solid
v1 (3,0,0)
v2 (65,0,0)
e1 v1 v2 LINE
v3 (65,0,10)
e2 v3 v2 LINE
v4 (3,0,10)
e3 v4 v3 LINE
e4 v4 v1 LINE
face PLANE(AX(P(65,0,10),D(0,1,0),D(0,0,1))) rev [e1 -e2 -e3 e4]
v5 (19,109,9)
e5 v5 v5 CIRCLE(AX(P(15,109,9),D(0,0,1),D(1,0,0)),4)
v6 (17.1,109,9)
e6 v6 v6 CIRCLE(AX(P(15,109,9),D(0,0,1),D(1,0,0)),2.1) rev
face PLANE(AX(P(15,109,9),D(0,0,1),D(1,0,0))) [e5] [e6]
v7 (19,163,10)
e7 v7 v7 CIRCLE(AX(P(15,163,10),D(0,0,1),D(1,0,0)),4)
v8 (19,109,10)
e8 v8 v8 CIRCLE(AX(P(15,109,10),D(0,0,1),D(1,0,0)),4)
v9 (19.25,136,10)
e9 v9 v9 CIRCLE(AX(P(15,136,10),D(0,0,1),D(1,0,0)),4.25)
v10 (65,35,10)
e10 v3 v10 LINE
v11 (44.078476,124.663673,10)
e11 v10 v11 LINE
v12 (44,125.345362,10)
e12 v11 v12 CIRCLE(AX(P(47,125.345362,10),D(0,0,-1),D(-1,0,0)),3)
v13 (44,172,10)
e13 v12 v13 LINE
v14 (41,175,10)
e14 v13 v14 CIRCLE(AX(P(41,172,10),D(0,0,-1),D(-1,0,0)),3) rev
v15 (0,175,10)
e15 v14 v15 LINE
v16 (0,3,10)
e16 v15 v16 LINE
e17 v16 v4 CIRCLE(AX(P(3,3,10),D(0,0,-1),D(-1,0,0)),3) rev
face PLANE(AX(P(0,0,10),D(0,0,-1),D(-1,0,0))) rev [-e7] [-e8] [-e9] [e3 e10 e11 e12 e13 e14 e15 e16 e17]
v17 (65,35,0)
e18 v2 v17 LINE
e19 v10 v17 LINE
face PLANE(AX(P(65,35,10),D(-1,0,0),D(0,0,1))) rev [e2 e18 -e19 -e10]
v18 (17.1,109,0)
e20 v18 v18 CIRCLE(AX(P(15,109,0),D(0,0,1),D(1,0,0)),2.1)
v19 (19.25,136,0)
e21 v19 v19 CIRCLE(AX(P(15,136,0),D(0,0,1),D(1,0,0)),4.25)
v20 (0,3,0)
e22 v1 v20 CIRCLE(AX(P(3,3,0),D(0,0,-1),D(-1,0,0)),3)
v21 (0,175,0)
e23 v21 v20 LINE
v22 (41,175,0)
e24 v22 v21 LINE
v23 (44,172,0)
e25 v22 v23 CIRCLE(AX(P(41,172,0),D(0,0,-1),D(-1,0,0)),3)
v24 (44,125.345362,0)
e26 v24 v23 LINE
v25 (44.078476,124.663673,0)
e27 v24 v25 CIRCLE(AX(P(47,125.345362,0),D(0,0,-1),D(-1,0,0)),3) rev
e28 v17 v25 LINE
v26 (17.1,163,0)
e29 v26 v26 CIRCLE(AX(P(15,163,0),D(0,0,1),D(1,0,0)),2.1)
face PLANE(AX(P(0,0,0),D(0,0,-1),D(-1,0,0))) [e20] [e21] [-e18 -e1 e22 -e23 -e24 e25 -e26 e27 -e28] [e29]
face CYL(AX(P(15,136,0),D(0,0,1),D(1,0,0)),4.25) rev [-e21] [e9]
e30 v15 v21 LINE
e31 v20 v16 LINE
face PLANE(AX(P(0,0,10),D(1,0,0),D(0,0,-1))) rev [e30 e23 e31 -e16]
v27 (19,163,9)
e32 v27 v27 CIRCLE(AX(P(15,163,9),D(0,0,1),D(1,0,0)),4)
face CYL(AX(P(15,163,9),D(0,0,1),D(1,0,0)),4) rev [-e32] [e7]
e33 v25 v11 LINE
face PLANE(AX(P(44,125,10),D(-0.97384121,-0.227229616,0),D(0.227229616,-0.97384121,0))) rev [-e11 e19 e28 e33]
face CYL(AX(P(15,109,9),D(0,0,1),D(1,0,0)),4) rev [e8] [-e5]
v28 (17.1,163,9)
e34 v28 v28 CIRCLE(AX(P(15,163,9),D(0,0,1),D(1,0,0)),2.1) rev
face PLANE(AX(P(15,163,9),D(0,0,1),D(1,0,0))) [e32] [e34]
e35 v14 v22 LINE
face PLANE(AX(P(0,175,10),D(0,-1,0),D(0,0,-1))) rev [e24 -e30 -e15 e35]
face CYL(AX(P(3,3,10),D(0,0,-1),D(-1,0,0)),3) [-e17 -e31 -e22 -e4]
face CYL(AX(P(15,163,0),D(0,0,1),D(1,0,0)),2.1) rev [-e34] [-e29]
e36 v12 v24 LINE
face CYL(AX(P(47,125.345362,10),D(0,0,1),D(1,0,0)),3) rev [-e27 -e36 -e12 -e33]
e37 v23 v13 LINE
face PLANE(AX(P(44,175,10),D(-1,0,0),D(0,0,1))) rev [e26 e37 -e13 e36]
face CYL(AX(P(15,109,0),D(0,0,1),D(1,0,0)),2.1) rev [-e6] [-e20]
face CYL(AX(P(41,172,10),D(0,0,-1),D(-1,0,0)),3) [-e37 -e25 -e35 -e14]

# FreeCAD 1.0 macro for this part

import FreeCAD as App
import Part
import Sketcher
Q = App.Units.Quantity


def edges_at(feature, points):
    """Names of the edges that pass closest to the given points."""
    edges = feature.Shape.Edges
    near = lambda p: min(range(len(edges)), key=lambda i: edges[i].distToShape(Part.Vertex(*p))[0])
    return sorted({f"Edge{near(p) + 1}" for p in points})


def add_polygon(sketch, points):
    """Adds a closed chain of lines whose ends are joined by coincident constraints."""
    first, n = sketch.GeometryCount, len(points)
    for a, b in zip(points, points[1:] + points[:1]):
        sketch.addGeometry(Part.LineSegment(App.Vector(*a, 0), App.Vector(*b, 0)), False)
    for i in range(n):
        sketch.addConstraint(Sketcher.Constraint("Coincident", first + i, 2, first + (i + 1) % n, 1))

doc = App.newDocument("Part")
body = doc.addObject("PartDesign::Body", "Body")

# Sketch on XY plane
sketch1 = body.newObject("Sketcher::SketchObject", "Sketch")
sketch1.AttachmentSupport = (doc.getObject("XY_Plane"), [""])
sketch1.MapMode = "FlatFace"
add_polygon(sketch1, [(0, 175), (0, 0), (65, 0), (65, 35), (44, 125), (44, 175)])  # lines 0-5
sketch1.addConstraint([
    Sketcher.Constraint("Vertical", 0),
    Sketcher.Constraint("Horizontal", 1),
    Sketcher.Constraint("Vertical", 2),
    Sketcher.Constraint("Vertical", 4),
    Sketcher.Constraint("Horizontal", 5),
    Sketcher.Constraint("Coincident", 0, 2, -1, 1),
    Sketcher.Constraint("DistanceX", 1, 1, 1, 2, Q("65 mm")),
    Sketcher.Constraint("DistanceX", 5, 2, 5, 1, Q("44 mm")),
    Sketcher.Constraint("DistanceY", 0, 2, 0, 1, Q("175 mm")),
    Sketcher.Constraint("DistanceY", 2, 1, 2, 2, Q("35 mm")),
    Sketcher.Constraint("DistanceY", 4, 1, 4, 2, Q("50 mm")),
])
pad1 = body.newObject("PartDesign::Pad", "Pad")
pad1.Profile = sketch1
pad1.Length = 10

# Sketch on XY plane
sketch2 = body.newObject("Sketcher::SketchObject", "Sketch001")
sketch2.AttachmentSupport = (doc.getObject("XY_Plane"), [""])
sketch2.MapMode = "FlatFace"
sketch2.AttachmentOffset = App.Placement(App.Vector(0, 0, 10), App.Rotation())
sketch2.addGeometry([
    Part.Circle(App.Vector(15, 163, 0), App.Vector(0, 0, 1), 2.1),
    Part.Circle(App.Vector(15, 109, 0), App.Vector(0, 0, 1), 2.1),
], False)
sketch2.addConstraint([
    Sketcher.Constraint("Equal", 0, 1),
    Sketcher.Constraint("Vertical", 0, 3, 1, 3),
    Sketcher.Constraint("Diameter", 0, Q("4.2 mm")),
    Sketcher.Constraint("DistanceX", -1, 1, 0, 3, Q("15 mm")),
    Sketcher.Constraint("DistanceY", -1, 1, 0, 3, Q("163 mm")),
    Sketcher.Constraint("DistanceY", -1, 1, 1, 3, Q("109 mm")),
])
pocket1 = body.newObject("PartDesign::Pocket", "Pocket")
pocket1.Profile = sketch2
pocket1.Type = "ThroughAll"

# Sketch on XY plane
sketch3 = body.newObject("Sketcher::SketchObject", "Sketch002")
sketch3.AttachmentSupport = (doc.getObject("XY_Plane"), [""])
sketch3.MapMode = "FlatFace"
sketch3.AttachmentOffset = App.Placement(App.Vector(0, 0, 10), App.Rotation())
sketch3.addGeometry([
    Part.Circle(App.Vector(15, 163, 0), App.Vector(0, 0, 1), 4),
    Part.Circle(App.Vector(15, 109, 0), App.Vector(0, 0, 1), 4),
], False)
sketch3.addConstraint([
    Sketcher.Constraint("Equal", 0, 1),
    Sketcher.Constraint("Vertical", 0, 3, 1, 3),
    Sketcher.Constraint("Diameter", 0, Q("8 mm")),
    Sketcher.Constraint("DistanceX", -1, 1, 0, 3, Q("15 mm")),
    Sketcher.Constraint("DistanceY", -1, 1, 0, 3, Q("163 mm")),
    Sketcher.Constraint("DistanceY", -1, 1, 1, 3, Q("109 mm")),
])
pocket2 = body.newObject("PartDesign::Pocket", "Pocket001")
pocket2.Profile = sketch3
pocket2.Length = 1
doc.recompute()

fillet = body.newObject("PartDesign::Fillet", "Fillet")
fillet.Base = (pocket2, edges_at(pocket2, [(0, 0, 5), (44, 175, 5), (44, 125, 5)]))
fillet.Radius = 3

# Sketch on XY plane
sketch4 = body.newObject("Sketcher::SketchObject", "Sketch003")
sketch4.AttachmentSupport = (doc.getObject("XY_Plane"), [""])
sketch4.MapMode = "FlatFace"
sketch4.AttachmentOffset = App.Placement(App.Vector(0, 0, 10), App.Rotation())
sketch4.addGeometry(Part.Circle(App.Vector(15, 136, 0), App.Vector(0, 0, 1), 4.2), False)
sketch4.addConstraint([
    Sketcher.Constraint("Diameter", 0, Q("8.5 mm")),
    Sketcher.Constraint("DistanceX", -1, 1, 0, 3, Q("15 mm")),
    Sketcher.Constraint("DistanceY", -1, 1, 0, 3, Q("136 mm")),
])
pocket3 = body.newObject("PartDesign::Pocket", "Pocket002")
pocket3.Profile = sketch4
pocket3.Length = 10

doc.recompute()
